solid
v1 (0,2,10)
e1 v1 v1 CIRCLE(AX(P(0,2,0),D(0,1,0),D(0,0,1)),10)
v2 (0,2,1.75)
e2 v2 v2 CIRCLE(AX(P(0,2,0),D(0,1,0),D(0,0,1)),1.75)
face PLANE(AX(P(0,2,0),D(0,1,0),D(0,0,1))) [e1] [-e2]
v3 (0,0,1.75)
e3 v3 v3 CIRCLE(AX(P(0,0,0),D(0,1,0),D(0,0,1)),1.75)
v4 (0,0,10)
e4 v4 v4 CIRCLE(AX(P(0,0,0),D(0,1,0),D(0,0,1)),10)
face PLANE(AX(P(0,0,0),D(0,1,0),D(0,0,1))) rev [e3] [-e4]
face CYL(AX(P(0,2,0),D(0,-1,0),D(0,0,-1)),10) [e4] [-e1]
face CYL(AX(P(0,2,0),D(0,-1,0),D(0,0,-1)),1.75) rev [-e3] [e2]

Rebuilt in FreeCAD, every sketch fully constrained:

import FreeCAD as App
import Part
import Sketcher

V = App.Vector
Q = App.Units.Quantity

doc = App.newDocument("Part")
body = doc.addObject("PartDesign::Body", "Body")

# Sketch on XZ plane
sketch1 = doc.addObject("Sketcher::SketchObject", "Sketch")
body.addObject(sketch1)
sketch1.AttachmentSupport = (doc.XZ_Plane, [""])
sketch1.MapMode = "FlatFace"
sketch1.addGeometry(Part.Circle(V(0, 0, 0), V(0, 0, 1), 10), False)
sketch1.addGeometry(Part.Circle(V(0, 0, 0), V(0, 0, 1), 1.75), False)
sketch1.addConstraint(Sketcher.Constraint("Coincident", 0, 3, -1, 1))
sketch1.addConstraint(Sketcher.Constraint("Coincident", 1, 3, -1, 1))
sketch1.addConstraint(Sketcher.Constraint("Diameter", 0, Q("20 mm")))
sketch1.addConstraint(Sketcher.Constraint("Diameter", 1, Q("3.5 mm")))
pad1 = doc.addObject("PartDesign::Pad", "Pad")
body.addObject(pad1)
pad1.Profile = sketch1
pad1.Length = 2
pad1.Reversed = True

doc.recompute()
